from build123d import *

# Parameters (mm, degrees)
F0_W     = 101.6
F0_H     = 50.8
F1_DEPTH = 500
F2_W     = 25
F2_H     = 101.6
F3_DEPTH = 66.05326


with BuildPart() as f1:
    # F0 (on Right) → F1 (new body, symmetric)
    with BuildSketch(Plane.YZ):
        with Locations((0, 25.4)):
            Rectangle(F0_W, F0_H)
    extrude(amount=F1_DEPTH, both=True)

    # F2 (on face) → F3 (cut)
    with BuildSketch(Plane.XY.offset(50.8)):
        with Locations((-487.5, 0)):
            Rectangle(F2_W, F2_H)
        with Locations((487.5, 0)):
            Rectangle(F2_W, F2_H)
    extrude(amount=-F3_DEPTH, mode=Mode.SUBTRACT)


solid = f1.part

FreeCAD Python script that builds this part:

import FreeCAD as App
import Part
import Sketcher

doc = App.newDocument("Part")
body = doc.addObject("PartDesign::Body", "Body")

# Sketch on YZ plane
sketch1 = doc.addObject("Sketcher::SketchObject", "Sketch")
body.addObject(sketch1)
sketch1.AttachmentSupport = (doc.YZ_Plane, [""])
sketch1.MapMode = "FlatFace"
sketch1.addGeometry([
    Part.LineSegment(App.Vector(-51, 51, 0), App.Vector(-51, 0, 0)),
    Part.LineSegment(App.Vector(-51, 0, 0), App.Vector(51, 0, 0)),
    Part.LineSegment(App.Vector(51, 0, 0), App.Vector(51, 51, 0)),
    Part.LineSegment(App.Vector(51, 51, 0), App.Vector(-51, 51, 0)),
], False)
sketch1.addConstraint([
    Sketcher.Constraint("Coincident", 0, 2, 1, 1),
    Sketcher.Constraint("Coincident", 1, 2, 2, 1),
    Sketcher.Constraint("Coincident", 2, 2, 3, 1),
    Sketcher.Constraint("Coincident", 3, 2, 0, 1),
    Sketcher.Constraint("Vertical", 0),
    Sketcher.Constraint("Horizontal", 1),
    Sketcher.Constraint("Vertical", 2),
    Sketcher.Constraint("Horizontal", 3),
    Sketcher.Constraint("Symmetric", 0, 2, 1, 2, -1, 1),
    Sketcher.Constraint("DistanceX", 1, 1, 1, 2, 101.6),
    Sketcher.Constraint("DistanceY", 0, 2, 0, 1, 50.8),
])
pad1 = doc.addObject("PartDesign::Pad", "Pad")
body.addObject(pad1)
pad1.Profile = sketch1
pad1.Length = 1000
pad1.Midplane = True

# Sketch on XY plane
sketch2 = doc.addObject("Sketcher::SketchObject", "Sketch001")
body.addObject(sketch2)
sketch2.AttachmentSupport = (doc.XY_Plane, [""])
sketch2.MapMode = "FlatFace"
sketch2.AttachmentOffset = App.Placement(App.Vector(0, 0, 50.8), App.Rotation())
sketch2.addGeometry([
    Part.LineSegment(App.Vector(-500, 51, 0), App.Vector(-500, -51, 0)),  # 0
    Part.LineSegment(App.Vector(-500, -51, 0), App.Vector(-475, -51, 0)),  # 1
    Part.LineSegment(App.Vector(-475, -51, 0), App.Vector(-475, 51, 0)),  # 2
    Part.LineSegment(App.Vector(-475, 51, 0), App.Vector(-500, 51, 0)),  # 3
    Part.LineSegment(App.Vector(475, 51, 0), App.Vector(475, -51, 0)),  # 4
    Part.LineSegment(App.Vector(475, -51, 0), App.Vector(500, -51, 0)),  # 5
    Part.LineSegment(App.Vector(500, -51, 0), App.Vector(500, 51, 0)),  # 6
    Part.LineSegment(App.Vector(500, 51, 0), App.Vector(475, 51, 0)),  # 7
], False)
sketch2.addConstraint([
    Sketcher.Constraint("Coincident", 0, 2, 1, 1),
    Sketcher.Constraint("Coincident", 1, 2, 2, 1),
    Sketcher.Constraint("Coincident", 2, 2, 3, 1),
    Sketcher.Constraint("Coincident", 3, 2, 0, 1),
    Sketcher.Constraint("Coincident", 4, 2, 5, 1),
    Sketcher.Constraint("Coincident", 5, 2, 6, 1),
    Sketcher.Constraint("Coincident", 6, 2, 7, 1),
    Sketcher.Constraint("Coincident", 7, 2, 4, 1),
    Sketcher.Constraint("Vertical", 0),
    Sketcher.Constraint("Horizontal", 1),
    Sketcher.Constraint("Vertical", 2),
    Sketcher.Constraint("Horizontal", 3),
    Sketcher.Constraint("Vertical", 4),
    Sketcher.Constraint("Horizontal", 5),
    Sketcher.Constraint("Vertical", 6),
    Sketcher.Constraint("Horizontal", 7),
    Sketcher.Constraint("Symmetric", 2, 2, 4, 2, -1, 1),
    Sketcher.Constraint("Symmetric", 0, 2, 6, 2, -1, 1),
    Sketcher.Constraint("Horizontal", 1, 2, 4, 2),
    Sketcher.Constraint("DistanceX", 1, 1, 1, 2, 25.0),
    Sketcher.Constraint("DistanceY", 0, 2, 0, 1, 101.6),
    Sketcher.Constraint("DistanceX", 0, 2, -1, 1, 500.0),
])
pocket1 = doc.addObject("PartDesign::Pocket", "Pocket")
body.addObject(pocket1)
pocket1.Profile = sketch2
pocket1.Length = 66.05326

doc.recompute()
